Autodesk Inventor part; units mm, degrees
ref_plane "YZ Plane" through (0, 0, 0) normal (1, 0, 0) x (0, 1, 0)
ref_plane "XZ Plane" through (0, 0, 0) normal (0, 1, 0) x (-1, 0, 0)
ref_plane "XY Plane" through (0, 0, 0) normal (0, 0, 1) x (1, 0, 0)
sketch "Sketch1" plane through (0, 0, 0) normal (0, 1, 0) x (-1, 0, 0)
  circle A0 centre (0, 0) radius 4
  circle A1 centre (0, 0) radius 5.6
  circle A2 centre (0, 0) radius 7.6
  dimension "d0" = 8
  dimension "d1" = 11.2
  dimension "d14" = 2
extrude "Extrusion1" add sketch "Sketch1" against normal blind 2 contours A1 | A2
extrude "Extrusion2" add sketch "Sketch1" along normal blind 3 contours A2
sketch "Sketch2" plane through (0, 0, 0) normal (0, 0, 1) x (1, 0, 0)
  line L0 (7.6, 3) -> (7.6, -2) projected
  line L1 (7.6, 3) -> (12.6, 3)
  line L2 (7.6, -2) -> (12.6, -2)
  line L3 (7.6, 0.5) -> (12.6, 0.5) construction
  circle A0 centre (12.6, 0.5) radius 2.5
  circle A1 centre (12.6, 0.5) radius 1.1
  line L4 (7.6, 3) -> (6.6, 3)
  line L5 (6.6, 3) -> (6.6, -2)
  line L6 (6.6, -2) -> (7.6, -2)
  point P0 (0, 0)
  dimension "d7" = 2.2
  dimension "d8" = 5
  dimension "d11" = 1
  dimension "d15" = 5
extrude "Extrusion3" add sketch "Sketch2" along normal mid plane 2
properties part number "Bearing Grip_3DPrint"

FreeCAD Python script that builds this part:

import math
import FreeCAD as App
import Part
import Sketcher

V = App.Vector
Q = App.Units.Quantity

doc = App.newDocument("Part")
body = doc.addObject("PartDesign::Body", "Body")

sketch1 = doc.addObject("Sketcher::SketchObject", "Sketch")
body.addObject(sketch1)
sketch1.AttachmentSupport = (doc.XZ_Plane, [""])
sketch1.MapMode = "FlatFace"
sketch1.addGeometry([
    Part.Circle(V(0, 0, 0), V(0, 0, 1), 7.6),
    Part.Circle(V(0, 0, 0), V(0, 0, 1), 4),
], False)
sketch1.addConstraint([
    Sketcher.Constraint("Coincident", 0, 3, -1, 1),
    Sketcher.Constraint("Coincident", 1, 3, -1, 1),
    Sketcher.Constraint("Diameter", 1, Q("8 mm")),
    Sketcher.Constraint("Diameter", 0, Q("15.2 mm")),
])
pad1 = doc.addObject("PartDesign::Pad", "Pad")
body.addObject(pad1)
pad1.Profile = sketch1
pad1.Length = 2

sketch2 = doc.addObject("Sketcher::SketchObject", "Sketch001")
body.addObject(sketch2)
sketch2.AttachmentSupport = (doc.XZ_Plane, [""])
sketch2.MapMode = "FlatFace"
sketch2.addGeometry([
    Part.Circle(V(0, 0, 0), V(0, 0, 1), 8),
    Part.Circle(V(0, 0, 0), V(0, 0, 1), 6),
], False)
sketch2.addConstraint([
    Sketcher.Constraint("Coincident", 0, 3, -1, 1),
    Sketcher.Constraint("Coincident", 1, 3, -1, 1),
    Sketcher.Constraint("Diameter", 1, Q("11.2 mm")),
    Sketcher.Constraint("Diameter", 0, Q("15.2 mm")),
])
pad2 = doc.addObject("PartDesign::Pad", "Pad001")
body.addObject(pad2)
pad2.Profile = sketch2
pad2.Length = 3
pad2.Reversed = True

sketch3 = doc.addObject("Sketcher::SketchObject", "Sketch002")
body.addObject(sketch3)
sketch3.AttachmentSupport = (doc.XY_Plane, [""])
sketch3.MapMode = "FlatFace"
sketch3.addGeometry([
    Part.LineSegment(V(12.6, 3, 0), V(6.6, 3, 0)),
    Part.LineSegment(V(6.6, 3, 0), V(6.6, -2, 0)),
    Part.LineSegment(V(6.6, -2, 0), V(12.6, -2, 0)),
    Part.ArcOfCircle(Part.Circle(V(12.6, 0.5, 0), V(0, 0, 1), 2.5), math.radians(-90), math.radians(90)),
    Part.Circle(V(12.6, 0.5, 0), V(0, 0, 1), 1.1),
], False)
sketch3.addConstraint([
    Sketcher.Constraint("Coincident", 0, 2, 1, 1),
    Sketcher.Constraint("Coincident", 1, 2, 2, 1),
    Sketcher.Constraint("Tangent", 2, 2, 3, 1),
    Sketcher.Constraint("Tangent", 3, 2, 0, 1),
    Sketcher.Constraint("Horizontal", 0),
    Sketcher.Constraint("Vertical", 1),
    Sketcher.Constraint("Horizontal", 2),
    Sketcher.Constraint("Coincident", 4, 3, 3, 3),
    Sketcher.Constraint("Diameter", 4, Q("2.2 mm")),
    Sketcher.Constraint("Radius", 3, Q("2.5 mm")),
    Sketcher.Constraint("DistanceX", 0, 2, 0, 1, Q("6 mm")),
    Sketcher.Constraint("DistanceY", -1, 1, 0, 2, Q("3 mm")),
    Sketcher.Constraint("DistanceX", -1, 1, 3, 3, Q("12.6 mm")),
])
pad3 = doc.addObject("PartDesign::Pad", "Pad002")
body.addObject(pad3)
pad3.Profile = sketch3
pad3.Length = 2
pad3.Midplane = True

doc.recompute()
